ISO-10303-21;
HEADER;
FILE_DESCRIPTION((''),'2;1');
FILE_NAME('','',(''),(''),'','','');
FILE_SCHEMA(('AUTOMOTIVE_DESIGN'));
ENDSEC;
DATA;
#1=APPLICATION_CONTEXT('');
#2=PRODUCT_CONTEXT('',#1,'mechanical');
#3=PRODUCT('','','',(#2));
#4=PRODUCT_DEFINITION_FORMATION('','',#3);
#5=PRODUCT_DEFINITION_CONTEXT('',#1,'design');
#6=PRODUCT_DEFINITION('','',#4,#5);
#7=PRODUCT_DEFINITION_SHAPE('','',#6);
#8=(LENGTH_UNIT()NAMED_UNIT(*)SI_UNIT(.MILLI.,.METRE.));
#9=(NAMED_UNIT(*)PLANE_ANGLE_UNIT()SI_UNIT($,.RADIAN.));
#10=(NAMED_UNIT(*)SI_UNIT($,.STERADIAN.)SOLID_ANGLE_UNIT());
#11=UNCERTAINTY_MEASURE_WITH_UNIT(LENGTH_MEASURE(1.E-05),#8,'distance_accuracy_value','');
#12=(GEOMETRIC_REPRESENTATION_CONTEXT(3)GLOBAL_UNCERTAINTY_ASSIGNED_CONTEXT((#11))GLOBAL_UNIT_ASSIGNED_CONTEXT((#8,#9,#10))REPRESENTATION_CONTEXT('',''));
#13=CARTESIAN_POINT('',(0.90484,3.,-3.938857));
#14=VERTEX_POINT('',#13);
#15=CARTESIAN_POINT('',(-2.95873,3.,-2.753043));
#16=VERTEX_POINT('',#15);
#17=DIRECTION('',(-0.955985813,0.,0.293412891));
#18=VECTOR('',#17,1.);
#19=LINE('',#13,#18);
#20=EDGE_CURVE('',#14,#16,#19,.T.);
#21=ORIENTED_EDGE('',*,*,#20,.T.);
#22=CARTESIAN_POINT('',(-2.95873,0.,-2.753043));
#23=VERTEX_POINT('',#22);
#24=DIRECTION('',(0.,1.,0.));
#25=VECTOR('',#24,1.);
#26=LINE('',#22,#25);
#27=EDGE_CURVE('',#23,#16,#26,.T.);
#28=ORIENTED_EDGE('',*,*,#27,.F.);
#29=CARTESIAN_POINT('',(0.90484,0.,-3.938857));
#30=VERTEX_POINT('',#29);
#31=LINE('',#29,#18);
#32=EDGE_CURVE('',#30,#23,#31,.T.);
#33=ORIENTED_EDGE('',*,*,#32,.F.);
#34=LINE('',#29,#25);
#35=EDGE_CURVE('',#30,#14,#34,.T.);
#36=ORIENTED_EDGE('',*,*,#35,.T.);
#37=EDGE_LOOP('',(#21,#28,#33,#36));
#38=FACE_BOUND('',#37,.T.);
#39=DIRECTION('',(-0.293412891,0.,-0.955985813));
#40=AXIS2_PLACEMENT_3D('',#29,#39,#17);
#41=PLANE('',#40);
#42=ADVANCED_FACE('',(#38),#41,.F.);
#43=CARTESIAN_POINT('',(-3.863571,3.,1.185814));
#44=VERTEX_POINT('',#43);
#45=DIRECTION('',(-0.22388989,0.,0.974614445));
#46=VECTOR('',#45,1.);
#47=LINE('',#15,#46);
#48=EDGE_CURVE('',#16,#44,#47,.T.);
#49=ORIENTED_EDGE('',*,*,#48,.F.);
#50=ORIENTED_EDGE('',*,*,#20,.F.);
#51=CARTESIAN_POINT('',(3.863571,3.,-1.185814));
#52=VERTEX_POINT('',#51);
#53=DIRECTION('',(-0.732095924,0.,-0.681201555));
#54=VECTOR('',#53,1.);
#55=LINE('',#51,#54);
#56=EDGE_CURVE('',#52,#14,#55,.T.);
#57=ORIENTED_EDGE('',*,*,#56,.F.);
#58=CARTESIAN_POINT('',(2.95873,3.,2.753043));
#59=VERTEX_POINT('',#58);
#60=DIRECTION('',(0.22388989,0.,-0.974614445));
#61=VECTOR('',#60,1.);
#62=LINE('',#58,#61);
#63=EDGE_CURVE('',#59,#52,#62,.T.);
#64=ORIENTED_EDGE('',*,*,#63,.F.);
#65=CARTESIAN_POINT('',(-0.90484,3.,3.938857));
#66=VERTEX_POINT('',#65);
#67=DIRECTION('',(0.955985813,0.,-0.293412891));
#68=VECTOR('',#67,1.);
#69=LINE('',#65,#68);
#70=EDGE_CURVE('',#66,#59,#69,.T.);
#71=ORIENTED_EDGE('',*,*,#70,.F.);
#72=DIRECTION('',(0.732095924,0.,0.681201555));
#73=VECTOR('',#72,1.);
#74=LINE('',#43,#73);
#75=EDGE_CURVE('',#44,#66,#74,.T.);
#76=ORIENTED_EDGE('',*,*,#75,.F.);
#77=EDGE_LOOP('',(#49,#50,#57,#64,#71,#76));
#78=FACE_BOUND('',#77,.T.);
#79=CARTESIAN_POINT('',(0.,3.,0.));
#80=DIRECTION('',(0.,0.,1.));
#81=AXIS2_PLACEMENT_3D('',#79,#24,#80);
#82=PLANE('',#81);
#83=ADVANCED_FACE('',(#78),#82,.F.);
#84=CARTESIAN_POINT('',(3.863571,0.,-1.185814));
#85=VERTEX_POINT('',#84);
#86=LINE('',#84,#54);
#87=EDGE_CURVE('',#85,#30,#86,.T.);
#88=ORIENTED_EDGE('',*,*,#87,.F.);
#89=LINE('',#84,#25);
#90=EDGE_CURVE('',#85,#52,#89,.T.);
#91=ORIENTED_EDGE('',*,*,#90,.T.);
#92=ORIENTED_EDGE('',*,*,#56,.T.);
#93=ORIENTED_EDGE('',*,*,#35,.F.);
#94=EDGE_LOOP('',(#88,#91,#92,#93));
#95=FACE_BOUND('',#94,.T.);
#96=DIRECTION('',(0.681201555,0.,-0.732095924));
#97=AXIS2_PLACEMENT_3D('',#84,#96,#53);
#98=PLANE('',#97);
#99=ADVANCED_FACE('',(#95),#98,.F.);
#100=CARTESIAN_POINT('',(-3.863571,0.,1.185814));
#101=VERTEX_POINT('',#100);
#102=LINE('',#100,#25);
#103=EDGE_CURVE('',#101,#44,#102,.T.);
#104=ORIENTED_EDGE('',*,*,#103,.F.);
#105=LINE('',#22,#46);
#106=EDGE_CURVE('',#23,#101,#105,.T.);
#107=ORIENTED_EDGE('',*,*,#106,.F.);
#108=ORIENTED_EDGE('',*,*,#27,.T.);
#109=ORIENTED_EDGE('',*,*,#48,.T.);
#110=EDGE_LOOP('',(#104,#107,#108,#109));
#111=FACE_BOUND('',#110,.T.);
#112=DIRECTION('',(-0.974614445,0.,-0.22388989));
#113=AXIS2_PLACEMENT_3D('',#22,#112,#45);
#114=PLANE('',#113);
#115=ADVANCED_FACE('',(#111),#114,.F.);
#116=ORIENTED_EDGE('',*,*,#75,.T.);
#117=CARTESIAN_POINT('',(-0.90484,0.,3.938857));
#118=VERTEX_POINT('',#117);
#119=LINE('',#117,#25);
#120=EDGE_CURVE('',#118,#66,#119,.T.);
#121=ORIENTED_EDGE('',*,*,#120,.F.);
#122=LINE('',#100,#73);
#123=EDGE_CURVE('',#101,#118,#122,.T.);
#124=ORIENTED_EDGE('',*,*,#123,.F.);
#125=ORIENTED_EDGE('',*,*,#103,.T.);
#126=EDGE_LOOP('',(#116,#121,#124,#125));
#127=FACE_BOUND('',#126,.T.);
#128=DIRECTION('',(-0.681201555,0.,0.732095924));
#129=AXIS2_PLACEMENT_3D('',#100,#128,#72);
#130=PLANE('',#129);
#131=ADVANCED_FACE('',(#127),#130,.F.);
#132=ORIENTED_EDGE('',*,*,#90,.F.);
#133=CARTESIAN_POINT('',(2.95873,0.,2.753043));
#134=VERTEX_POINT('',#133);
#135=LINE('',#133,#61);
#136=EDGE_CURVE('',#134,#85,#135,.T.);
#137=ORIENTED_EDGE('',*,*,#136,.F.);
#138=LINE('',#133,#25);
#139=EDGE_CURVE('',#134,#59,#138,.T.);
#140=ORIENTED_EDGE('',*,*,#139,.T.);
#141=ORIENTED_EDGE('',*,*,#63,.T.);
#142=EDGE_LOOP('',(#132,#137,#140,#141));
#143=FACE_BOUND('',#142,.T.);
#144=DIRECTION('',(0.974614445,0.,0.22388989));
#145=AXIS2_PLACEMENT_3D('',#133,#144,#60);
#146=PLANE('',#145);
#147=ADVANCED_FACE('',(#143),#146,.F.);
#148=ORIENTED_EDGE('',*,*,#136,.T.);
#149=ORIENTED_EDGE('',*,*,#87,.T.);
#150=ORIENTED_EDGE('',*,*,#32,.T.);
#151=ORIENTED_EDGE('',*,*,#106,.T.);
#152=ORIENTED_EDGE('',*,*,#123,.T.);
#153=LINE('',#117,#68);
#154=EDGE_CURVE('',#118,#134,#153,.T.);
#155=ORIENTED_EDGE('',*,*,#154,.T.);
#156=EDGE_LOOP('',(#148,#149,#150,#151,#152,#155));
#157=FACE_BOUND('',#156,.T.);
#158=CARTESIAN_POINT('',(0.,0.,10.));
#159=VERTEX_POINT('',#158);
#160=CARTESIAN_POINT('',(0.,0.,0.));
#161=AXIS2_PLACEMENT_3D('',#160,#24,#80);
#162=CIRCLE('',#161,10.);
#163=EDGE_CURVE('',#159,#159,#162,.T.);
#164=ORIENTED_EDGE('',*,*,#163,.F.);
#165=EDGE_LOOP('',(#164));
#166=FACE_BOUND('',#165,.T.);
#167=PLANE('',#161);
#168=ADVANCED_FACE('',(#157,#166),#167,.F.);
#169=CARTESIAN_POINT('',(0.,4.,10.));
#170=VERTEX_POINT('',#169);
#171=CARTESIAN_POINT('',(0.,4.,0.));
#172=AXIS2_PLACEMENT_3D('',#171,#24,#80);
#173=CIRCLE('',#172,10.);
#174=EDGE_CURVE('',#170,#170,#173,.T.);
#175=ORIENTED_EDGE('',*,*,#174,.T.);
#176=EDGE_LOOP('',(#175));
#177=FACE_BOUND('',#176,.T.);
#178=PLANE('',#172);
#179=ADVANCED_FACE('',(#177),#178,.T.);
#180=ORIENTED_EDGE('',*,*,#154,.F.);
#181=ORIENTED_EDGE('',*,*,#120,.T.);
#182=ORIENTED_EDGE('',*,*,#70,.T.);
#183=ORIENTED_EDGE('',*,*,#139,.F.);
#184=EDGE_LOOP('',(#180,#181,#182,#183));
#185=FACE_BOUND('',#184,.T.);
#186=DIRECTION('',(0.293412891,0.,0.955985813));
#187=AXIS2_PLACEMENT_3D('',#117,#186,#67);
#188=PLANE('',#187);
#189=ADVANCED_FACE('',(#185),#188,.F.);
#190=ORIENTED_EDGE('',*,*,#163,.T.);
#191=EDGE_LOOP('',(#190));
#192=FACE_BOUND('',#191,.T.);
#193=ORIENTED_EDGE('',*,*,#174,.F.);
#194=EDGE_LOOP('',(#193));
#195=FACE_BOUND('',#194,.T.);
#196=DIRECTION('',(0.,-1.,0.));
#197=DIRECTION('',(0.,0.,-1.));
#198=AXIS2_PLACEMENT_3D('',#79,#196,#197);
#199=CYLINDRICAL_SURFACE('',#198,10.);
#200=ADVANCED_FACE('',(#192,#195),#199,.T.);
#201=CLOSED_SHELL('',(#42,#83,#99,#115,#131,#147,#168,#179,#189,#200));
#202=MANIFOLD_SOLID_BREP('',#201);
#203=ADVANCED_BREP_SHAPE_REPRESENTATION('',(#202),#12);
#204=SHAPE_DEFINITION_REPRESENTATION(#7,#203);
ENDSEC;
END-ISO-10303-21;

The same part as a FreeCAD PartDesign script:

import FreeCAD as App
import Part
import Sketcher

V = App.Vector

doc = App.newDocument("Part")
body = doc.addObject("PartDesign::Body", "Body")

sketch1 = doc.addObject("Sketcher::SketchObject", "Sketch")
body.addObject(sketch1)
sketch1.AttachmentSupport = (doc.XZ_Plane, [""])
sketch1.MapMode = "FlatFace"
sketch1.addGeometry(Part.Circle(V(0, 0, 0), V(0, 0, 1), 10), False)
sketch1.addConstraint(Sketcher.Constraint("Coincident", 0, 3, -1, 1))
sketch1.addConstraint(Sketcher.Constraint("Diameter", 0, 20.0))
pad1 = doc.addObject("PartDesign::Pad", "Pad")
body.addObject(pad1)
pad1.Profile = sketch1
pad1.Length = 3
pad1.Reversed = True

sketch2 = doc.addObject("Sketcher::SketchObject", "Sketch001")
body.addObject(sketch2)
sketch2.AttachmentSupport = (doc.XZ_Plane, [""])
sketch2.MapMode = "FlatFace"
sketch2.AttachmentOffset = App.Placement(V(0, 0, -3), App.Rotation())
sketch2.addGeometry(Part.LineSegment(V(3, 2.8, 0), V(3.9, -1.2, 0)), False)
sketch2.addGeometry(Part.LineSegment(V(3.9, -1.2, 0), V(0.9, -3.9, 0)), False)
sketch2.addGeometry(Part.LineSegment(V(0.9, -3.9, 0), V(-3, -2.8, 0)), False)
sketch2.addGeometry(Part.LineSegment(V(-3, -2.8, 0), V(-3.9, 1.2, 0)), False)
sketch2.addGeometry(Part.LineSegment(V(-3.9, 1.2, 0), V(-0.9, 3.9, 0)), False)
sketch2.addGeometry(Part.LineSegment(V(-0.9, 3.9, 0), V(3, 2.8, 0)), False)
sketch2.addConstraint(Sketcher.Constraint("Coincident", 0, 2, 1, 1))
sketch2.addConstraint(Sketcher.Constraint("Coincident", 1, 2, 2, 1))
sketch2.addConstraint(Sketcher.Constraint("Coincident", 2, 2, 3, 1))
sketch2.addConstraint(Sketcher.Constraint("Coincident", 3, 2, 4, 1))
sketch2.addConstraint(Sketcher.Constraint("Coincident", 4, 2, 5, 1))
sketch2.addConstraint(Sketcher.Constraint("Coincident", 5, 2, 0, 1))
sketch2.addConstraint(Sketcher.Constraint("Symmetric", 0, 2, 3, 2, -1, 1))
sketch2.addConstraint(Sketcher.Constraint("Symmetric", 1, 2, 4, 2, -1, 1))
sketch2.addConstraint(Sketcher.Constraint("Symmetric", 2, 2, 5, 2, -1, 1))
sketch2.addConstraint(Sketcher.Constraint("Equal", 0, 1))
sketch2.addConstraint(Sketcher.Constraint("Equal", 1, 2))
sketch2.addConstraint(Sketcher.Constraint("DistanceX", 2, 2, 0, 2, 6.822301))
sketch2.addConstraint(Sketcher.Constraint("DistanceY", 2, 2, 4, 2, 6.691901))
sketch2.addConstraint(Sketcher.Constraint("Distance", 0, 4.041452))
sketch2.addConstraint(Sketcher.Constraint("DistanceX", -1, 1, 0, 2, 3.863571))
pocket1 = doc.addObject("PartDesign::Pocket", "Pocket")
body.addObject(pocket1)
pocket1.Profile = sketch2
pocket1.Type = "ThroughAll"
pocket1.Reversed = True

sketch3 = doc.addObject("Sketcher::SketchObject", "Sketch002")
body.addObject(sketch3)
sketch3.AttachmentSupport = (doc.XZ_Plane, [""])
sketch3.MapMode = "FlatFace"
sketch3.AttachmentOffset = App.Placement(V(0, 0, -3), App.Rotation())
sketch3.addGeometry(Part.Circle(V(0, 0, 0), V(0, 0, 1), 10), False)
sketch3.addConstraint(Sketcher.Constraint("Coincident", 0, 3, -1, 1))
sketch3.addConstraint(Sketcher.Constraint("Diameter", 0, 20.0))
pad2 = doc.addObject("PartDesign::Pad", "Pad001")
body.addObject(pad2)
pad2.Profile = sketch3
pad2.Length = 1
pad2.Reversed = True

doc.recompute()
